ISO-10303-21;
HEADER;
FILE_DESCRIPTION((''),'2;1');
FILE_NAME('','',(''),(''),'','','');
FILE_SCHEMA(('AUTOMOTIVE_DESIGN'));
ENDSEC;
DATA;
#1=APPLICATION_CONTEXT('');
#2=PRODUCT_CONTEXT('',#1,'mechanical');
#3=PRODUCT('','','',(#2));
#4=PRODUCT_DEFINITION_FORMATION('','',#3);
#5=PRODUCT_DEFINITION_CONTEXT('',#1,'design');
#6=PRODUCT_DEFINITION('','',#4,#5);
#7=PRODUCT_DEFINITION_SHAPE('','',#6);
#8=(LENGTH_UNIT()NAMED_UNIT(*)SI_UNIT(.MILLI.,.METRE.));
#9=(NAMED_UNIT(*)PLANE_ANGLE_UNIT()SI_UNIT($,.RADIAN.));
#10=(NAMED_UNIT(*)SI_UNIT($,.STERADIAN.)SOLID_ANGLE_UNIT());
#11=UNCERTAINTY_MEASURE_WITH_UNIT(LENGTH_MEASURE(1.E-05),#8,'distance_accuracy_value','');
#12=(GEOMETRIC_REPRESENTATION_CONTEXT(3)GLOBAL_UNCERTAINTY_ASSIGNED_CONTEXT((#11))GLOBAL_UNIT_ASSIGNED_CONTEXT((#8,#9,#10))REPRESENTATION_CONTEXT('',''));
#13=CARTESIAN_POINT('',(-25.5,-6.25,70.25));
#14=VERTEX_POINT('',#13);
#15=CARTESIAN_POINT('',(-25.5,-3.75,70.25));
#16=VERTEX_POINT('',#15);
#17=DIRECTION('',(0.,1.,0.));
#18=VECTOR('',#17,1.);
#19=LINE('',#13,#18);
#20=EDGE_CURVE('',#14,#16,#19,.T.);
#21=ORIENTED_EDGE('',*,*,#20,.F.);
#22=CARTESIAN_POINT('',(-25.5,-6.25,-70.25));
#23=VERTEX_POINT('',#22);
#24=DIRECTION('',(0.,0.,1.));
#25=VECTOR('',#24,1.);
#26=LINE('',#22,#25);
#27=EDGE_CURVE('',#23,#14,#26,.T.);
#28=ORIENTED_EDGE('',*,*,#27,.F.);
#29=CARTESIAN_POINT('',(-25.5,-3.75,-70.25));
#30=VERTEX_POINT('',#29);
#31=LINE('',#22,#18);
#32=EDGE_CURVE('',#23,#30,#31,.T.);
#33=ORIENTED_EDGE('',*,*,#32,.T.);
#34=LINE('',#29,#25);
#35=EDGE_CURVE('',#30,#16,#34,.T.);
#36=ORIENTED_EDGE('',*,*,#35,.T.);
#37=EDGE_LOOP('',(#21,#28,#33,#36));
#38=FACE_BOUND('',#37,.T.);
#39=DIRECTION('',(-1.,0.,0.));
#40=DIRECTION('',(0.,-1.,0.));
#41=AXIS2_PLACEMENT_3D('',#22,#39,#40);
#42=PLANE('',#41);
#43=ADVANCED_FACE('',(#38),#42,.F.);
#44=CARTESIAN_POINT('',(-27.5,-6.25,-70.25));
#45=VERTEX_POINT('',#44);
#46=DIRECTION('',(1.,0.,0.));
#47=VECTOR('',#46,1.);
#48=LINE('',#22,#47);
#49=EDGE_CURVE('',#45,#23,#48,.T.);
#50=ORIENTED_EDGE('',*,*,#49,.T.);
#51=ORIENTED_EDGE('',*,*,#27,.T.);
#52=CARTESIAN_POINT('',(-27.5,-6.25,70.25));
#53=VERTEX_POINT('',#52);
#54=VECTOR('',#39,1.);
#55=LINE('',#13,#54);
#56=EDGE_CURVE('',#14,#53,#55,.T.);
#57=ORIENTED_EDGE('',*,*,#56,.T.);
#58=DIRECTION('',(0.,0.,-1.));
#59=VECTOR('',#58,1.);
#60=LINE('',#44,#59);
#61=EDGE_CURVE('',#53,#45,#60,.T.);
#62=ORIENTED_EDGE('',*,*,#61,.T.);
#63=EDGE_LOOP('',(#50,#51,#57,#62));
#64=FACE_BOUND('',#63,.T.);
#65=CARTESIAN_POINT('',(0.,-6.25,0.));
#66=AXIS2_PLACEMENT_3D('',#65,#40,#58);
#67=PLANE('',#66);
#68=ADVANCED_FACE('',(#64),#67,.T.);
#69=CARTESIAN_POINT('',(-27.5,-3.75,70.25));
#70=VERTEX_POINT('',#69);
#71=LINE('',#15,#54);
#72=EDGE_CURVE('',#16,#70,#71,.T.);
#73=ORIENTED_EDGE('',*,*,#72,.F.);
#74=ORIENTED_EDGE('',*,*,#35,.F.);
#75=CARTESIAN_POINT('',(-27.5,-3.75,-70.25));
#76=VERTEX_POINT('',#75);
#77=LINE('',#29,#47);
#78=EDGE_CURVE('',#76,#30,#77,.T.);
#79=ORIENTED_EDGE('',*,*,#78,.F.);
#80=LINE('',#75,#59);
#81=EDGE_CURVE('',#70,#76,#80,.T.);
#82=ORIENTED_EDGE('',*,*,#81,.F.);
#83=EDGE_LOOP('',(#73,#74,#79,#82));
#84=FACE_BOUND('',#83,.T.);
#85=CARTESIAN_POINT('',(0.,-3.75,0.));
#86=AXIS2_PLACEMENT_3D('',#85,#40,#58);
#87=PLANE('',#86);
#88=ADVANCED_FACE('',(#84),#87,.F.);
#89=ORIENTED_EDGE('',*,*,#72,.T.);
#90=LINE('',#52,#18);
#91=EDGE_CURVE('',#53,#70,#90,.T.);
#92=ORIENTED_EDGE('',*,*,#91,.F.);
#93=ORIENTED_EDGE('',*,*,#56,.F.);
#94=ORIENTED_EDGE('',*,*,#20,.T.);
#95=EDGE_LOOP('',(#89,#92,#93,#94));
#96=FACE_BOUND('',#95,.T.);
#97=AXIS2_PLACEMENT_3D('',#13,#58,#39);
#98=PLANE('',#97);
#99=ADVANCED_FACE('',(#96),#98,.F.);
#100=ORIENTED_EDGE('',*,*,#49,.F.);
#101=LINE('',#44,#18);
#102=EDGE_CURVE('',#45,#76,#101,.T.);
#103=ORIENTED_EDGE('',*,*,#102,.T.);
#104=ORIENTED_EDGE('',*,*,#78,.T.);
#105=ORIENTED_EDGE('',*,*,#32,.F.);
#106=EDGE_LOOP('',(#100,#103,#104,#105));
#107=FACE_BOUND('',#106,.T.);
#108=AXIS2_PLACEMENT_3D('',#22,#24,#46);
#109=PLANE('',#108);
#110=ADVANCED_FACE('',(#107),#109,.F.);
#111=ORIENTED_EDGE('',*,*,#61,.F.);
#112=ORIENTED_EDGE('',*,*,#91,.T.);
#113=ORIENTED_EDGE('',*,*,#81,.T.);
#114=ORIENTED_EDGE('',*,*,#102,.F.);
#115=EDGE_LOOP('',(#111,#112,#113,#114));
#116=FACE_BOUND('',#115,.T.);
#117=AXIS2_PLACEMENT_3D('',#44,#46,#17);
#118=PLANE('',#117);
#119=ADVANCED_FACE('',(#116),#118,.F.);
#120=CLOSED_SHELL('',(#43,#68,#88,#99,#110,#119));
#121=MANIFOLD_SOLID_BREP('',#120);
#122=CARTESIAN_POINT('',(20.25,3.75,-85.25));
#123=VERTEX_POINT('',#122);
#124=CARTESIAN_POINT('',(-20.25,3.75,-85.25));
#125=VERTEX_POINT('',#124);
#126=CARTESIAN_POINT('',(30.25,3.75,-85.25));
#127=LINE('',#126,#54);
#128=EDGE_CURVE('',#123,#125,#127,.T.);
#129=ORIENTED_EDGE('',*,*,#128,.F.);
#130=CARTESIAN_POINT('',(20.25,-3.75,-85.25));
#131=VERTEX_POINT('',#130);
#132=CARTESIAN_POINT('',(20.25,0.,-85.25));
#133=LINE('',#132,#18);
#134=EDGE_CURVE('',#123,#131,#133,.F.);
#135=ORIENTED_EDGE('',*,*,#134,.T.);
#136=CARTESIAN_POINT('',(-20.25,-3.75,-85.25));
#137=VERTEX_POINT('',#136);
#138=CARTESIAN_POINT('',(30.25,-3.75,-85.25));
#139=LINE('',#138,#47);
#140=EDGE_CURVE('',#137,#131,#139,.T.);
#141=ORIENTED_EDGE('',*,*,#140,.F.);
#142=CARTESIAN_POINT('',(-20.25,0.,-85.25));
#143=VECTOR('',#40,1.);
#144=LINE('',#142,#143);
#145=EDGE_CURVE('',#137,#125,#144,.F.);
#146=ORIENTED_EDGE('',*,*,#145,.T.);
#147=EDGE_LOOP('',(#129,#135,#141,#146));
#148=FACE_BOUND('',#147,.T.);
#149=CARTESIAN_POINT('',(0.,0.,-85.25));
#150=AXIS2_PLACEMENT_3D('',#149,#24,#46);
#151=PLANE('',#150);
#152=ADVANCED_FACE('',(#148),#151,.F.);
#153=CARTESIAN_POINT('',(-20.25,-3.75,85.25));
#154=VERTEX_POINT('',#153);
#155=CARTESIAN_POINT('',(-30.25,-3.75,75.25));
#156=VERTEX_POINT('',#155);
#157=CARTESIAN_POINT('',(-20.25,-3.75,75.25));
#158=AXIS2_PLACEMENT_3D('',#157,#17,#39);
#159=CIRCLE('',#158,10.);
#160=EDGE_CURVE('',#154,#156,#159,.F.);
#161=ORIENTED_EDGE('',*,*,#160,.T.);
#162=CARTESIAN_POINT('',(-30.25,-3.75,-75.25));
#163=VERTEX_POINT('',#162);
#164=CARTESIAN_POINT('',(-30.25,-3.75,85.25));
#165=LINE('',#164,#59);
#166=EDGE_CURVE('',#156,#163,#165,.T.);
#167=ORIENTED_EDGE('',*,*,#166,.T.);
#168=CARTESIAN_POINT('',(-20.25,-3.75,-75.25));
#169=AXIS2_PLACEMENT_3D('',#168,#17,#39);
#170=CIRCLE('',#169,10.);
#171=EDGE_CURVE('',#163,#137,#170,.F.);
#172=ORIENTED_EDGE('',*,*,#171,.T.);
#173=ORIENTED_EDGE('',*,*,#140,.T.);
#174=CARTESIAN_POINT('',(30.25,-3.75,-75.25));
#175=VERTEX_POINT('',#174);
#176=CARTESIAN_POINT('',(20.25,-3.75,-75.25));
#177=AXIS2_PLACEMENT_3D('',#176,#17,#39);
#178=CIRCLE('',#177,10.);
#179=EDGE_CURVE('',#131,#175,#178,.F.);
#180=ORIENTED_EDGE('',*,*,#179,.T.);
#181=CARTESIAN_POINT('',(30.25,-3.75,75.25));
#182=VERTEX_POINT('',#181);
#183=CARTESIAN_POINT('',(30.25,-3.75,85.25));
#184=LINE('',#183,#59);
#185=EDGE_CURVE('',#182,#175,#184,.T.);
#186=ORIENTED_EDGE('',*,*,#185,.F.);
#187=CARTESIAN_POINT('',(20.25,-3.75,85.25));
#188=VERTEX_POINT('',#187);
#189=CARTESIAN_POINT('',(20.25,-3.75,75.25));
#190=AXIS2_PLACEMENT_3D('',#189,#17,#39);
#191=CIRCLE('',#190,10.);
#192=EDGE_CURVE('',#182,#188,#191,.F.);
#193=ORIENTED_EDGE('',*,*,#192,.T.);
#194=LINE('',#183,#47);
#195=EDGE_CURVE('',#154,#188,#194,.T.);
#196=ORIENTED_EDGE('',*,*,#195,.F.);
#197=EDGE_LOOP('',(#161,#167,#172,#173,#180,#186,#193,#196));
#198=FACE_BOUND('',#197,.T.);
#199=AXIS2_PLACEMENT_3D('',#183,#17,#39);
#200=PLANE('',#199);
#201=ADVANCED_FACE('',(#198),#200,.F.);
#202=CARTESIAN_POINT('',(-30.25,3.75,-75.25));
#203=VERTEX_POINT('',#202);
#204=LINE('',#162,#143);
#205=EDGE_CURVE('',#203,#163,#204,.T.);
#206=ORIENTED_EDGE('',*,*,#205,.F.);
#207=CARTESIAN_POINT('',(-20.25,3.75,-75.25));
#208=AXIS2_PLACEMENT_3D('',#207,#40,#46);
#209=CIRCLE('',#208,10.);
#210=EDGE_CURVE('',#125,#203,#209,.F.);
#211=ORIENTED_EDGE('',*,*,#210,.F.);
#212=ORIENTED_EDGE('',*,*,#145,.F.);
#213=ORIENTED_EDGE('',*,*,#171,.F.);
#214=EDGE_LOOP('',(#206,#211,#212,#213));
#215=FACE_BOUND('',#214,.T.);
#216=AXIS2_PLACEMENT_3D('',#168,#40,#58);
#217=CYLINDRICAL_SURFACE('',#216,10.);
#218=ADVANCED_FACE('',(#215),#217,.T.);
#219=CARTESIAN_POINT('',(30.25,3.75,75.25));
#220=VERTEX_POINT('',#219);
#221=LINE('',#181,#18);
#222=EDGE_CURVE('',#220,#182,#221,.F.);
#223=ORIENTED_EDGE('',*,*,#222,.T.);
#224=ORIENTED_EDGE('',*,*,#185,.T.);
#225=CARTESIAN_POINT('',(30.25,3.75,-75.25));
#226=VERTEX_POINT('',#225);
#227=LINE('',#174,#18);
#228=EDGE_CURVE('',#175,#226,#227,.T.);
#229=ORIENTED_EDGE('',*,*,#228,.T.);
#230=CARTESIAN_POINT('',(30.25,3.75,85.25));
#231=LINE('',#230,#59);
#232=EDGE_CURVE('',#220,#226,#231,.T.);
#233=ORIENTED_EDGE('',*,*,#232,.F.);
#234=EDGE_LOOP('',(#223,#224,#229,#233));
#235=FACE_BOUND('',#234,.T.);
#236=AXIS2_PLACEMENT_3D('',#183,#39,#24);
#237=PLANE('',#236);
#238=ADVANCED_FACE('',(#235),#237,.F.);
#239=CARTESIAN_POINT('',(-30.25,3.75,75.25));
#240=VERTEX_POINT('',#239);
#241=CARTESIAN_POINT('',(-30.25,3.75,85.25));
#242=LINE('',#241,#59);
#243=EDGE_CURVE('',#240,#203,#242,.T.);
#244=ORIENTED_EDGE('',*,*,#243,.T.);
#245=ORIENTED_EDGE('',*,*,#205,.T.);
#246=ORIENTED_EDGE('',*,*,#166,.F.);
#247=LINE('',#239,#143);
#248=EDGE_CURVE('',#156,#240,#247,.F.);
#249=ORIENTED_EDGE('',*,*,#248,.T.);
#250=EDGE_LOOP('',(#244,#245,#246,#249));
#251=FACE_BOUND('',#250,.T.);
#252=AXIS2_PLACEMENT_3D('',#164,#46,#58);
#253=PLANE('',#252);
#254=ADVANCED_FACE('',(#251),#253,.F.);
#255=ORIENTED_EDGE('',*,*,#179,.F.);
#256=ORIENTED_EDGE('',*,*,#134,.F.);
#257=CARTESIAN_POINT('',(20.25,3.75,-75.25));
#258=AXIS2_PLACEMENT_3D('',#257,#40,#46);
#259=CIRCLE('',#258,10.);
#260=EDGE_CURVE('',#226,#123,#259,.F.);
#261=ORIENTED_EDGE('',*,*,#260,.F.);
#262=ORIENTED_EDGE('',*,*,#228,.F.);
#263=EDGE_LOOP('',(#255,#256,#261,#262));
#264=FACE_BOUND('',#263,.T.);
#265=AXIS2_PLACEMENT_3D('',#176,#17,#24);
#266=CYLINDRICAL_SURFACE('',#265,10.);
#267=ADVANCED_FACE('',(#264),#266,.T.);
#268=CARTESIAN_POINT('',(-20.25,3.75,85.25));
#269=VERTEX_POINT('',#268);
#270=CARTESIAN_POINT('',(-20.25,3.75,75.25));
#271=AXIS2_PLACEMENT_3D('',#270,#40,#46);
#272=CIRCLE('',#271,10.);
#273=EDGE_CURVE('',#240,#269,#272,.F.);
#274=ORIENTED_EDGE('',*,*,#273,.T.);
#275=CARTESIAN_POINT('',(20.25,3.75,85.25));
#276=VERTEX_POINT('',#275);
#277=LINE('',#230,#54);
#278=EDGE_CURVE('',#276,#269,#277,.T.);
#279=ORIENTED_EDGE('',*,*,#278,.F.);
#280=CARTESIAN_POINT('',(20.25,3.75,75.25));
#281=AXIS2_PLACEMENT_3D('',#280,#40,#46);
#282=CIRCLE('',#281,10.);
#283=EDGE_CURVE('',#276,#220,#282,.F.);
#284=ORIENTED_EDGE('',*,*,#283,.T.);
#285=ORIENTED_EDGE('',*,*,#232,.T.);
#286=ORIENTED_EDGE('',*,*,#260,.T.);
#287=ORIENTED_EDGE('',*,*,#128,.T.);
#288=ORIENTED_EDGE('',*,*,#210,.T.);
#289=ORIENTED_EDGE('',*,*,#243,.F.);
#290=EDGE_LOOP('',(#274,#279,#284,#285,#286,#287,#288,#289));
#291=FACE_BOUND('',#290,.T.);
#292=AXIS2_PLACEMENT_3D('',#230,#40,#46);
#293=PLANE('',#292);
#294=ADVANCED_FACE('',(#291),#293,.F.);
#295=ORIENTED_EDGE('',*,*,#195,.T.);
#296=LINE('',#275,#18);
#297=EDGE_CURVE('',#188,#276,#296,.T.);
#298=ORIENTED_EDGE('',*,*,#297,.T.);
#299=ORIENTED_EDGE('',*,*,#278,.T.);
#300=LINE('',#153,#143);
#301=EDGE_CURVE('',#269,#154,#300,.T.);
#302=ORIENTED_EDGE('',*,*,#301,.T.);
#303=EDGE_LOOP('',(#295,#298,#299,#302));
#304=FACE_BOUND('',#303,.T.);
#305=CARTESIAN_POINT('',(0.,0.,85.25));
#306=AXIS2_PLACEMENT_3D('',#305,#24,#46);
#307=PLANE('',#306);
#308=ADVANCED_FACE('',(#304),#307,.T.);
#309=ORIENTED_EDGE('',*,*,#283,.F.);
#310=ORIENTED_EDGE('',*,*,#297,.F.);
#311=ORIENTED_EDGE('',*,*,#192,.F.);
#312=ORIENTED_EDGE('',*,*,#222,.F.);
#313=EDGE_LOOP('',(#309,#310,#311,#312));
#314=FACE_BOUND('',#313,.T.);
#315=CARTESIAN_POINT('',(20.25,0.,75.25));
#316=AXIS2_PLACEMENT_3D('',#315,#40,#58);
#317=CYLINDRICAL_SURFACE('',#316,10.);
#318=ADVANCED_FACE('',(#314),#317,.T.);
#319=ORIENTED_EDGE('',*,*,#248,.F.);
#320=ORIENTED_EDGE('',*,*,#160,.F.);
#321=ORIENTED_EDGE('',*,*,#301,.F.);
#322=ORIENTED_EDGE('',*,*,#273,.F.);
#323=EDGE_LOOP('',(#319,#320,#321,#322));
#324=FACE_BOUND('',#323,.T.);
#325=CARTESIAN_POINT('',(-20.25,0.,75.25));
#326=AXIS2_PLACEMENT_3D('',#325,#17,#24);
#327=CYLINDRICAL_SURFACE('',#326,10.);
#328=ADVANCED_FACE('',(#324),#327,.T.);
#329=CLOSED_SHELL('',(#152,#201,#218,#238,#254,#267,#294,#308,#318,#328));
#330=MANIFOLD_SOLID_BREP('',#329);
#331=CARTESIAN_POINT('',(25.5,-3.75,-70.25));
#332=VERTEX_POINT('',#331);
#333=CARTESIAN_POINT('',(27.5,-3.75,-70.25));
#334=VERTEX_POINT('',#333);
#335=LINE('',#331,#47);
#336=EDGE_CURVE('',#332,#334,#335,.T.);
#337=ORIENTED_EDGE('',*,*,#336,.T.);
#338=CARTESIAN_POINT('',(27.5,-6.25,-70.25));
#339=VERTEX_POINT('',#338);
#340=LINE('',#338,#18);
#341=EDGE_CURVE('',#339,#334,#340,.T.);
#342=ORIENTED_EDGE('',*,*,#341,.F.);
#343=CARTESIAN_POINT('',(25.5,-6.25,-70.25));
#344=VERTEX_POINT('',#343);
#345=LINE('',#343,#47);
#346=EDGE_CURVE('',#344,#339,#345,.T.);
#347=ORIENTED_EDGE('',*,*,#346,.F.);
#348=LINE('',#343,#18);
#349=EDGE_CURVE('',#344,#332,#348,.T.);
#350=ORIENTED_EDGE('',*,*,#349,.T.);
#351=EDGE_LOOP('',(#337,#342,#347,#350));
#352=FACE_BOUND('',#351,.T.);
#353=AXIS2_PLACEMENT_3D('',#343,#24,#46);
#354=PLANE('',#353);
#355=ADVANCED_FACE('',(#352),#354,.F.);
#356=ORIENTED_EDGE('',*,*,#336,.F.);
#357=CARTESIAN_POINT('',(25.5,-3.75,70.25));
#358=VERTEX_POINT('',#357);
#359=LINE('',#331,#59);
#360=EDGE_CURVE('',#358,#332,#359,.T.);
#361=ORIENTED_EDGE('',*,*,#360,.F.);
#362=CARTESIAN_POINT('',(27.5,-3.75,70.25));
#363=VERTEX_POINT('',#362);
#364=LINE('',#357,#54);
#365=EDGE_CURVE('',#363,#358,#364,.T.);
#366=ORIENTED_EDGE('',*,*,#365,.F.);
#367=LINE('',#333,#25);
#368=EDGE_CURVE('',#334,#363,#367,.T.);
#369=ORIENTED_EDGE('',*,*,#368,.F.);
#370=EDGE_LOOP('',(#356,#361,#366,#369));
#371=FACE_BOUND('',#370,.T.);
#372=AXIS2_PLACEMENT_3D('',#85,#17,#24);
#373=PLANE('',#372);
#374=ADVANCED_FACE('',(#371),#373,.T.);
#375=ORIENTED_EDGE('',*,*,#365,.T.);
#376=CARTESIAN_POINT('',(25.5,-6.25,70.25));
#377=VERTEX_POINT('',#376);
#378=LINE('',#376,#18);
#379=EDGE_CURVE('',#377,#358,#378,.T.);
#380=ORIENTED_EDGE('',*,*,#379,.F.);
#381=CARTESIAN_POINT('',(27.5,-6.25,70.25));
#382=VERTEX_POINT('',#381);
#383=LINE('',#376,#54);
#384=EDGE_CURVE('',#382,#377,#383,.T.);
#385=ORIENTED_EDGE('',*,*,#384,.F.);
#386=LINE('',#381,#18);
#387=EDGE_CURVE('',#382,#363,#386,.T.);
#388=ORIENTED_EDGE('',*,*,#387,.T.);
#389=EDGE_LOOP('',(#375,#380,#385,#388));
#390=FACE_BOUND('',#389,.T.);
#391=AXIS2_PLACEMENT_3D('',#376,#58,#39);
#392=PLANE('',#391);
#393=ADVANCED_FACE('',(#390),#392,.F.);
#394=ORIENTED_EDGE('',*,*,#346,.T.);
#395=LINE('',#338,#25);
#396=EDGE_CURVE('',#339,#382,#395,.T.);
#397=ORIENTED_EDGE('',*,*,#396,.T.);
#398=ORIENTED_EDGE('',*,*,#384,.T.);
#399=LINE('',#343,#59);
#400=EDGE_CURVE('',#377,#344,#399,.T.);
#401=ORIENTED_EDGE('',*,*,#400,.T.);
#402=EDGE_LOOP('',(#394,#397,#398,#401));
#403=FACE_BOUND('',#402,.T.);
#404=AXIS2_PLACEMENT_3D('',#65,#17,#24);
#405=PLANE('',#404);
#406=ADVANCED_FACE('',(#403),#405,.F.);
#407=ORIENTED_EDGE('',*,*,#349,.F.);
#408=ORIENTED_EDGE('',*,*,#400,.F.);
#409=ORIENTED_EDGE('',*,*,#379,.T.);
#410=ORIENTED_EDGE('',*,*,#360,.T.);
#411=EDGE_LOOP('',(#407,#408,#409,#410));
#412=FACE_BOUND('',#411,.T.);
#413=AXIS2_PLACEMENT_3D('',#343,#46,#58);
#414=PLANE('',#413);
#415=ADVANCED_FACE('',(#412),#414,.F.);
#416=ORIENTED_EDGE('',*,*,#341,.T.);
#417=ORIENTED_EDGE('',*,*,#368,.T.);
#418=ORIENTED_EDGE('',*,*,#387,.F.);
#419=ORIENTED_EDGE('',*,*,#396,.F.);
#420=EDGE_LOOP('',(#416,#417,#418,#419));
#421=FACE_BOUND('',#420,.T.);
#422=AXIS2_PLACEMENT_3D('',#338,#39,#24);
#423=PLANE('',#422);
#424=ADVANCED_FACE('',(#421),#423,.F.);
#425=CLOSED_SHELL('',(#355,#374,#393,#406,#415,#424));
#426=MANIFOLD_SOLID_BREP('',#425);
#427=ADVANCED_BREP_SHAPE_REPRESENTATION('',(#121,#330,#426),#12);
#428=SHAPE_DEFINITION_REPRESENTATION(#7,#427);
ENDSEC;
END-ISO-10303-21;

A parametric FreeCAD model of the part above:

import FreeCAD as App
import Part
import Sketcher
from FreeCAD import Vector
Q = App.Units.Quantity


def edges_at(feature, points):
    """Names of the edges that pass closest to the given points."""
    edges = feature.Shape.Edges
    near = lambda p: min(range(len(edges)), key=lambda i: edges[i].distToShape(Part.Vertex(*p))[0])
    return sorted({f"Edge{near(p) + 1}" for p in points})

doc = App.newDocument("Part")
params = doc.addObject("Spreadsheet::Sheet", "Params")
for row, (alias, value) in enumerate([
    ("sketch1_width", "60.5 mm"),
    ("sketch1_height", "7.5 mm"),
    ("pad1_length", "170.5 mm"),
    ("fillet_radius", "10 mm"),
    ("sketch2_width", "2 mm"),
    ("sketch2_height", "140.5 mm"),
    ("pad2_length", "2.5 mm"),
    ("sketch3_width", "2 mm"),
    ("sketch3_height", "140.5 mm"),
    ("pad3_length", "2.5 mm"),
], start=1):
    params.set(f"A{row}", alias)
    params.set(f"B{row}", "=" + value)
    params.setAlias(f"B{row}", alias)

body = doc.addObject("PartDesign::Body", "Body")

# Sketch on XY plane
sketch1 = body.newObject("Sketcher::SketchObject", "Sketch")
sketch1.AttachmentSupport = (doc.getObject("XY_Plane"), [""])
sketch1.MapMode = "FlatFace"
sketch1.addGeometry([
    Part.LineSegment(Vector(-30, 4, 0), Vector(-30, -4, 0)),
    Part.LineSegment(Vector(-30, -4, 0), Vector(30, -4, 0)),
    Part.LineSegment(Vector(30, -4, 0), Vector(30, 4, 0)),
    Part.LineSegment(Vector(30, 4, 0), Vector(-30, 4, 0)),
], False)
sketch1.addConstraint([
    Sketcher.Constraint("Coincident", 0, 2, 1, 1),
    Sketcher.Constraint("Coincident", 1, 2, 2, 1),
    Sketcher.Constraint("Coincident", 2, 2, 3, 1),
    Sketcher.Constraint("Coincident", 3, 2, 0, 1),
    Sketcher.Constraint("Vertical", 0),
    Sketcher.Constraint("Horizontal", 1),
    Sketcher.Constraint("Vertical", 2),
    Sketcher.Constraint("Horizontal", 3),
    Sketcher.Constraint("Symmetric", 0, 2, 2, 2, -1, 1),
    Sketcher.Constraint("DistanceX", 1, 1, 1, 2, Q("60.5 mm")),
    Sketcher.Constraint("DistanceY", 0, 2, 0, 1, Q("7.5 mm")),
])
sketch1.setExpression("Constraints[9]", "Params.sketch1_width")
sketch1.setExpression("Constraints[10]", "Params.sketch1_height")
pad1 = body.newObject("PartDesign::Pad", "Pad")
pad1.Profile = sketch1
pad1.setExpression("Length", "Params.pad1_length")
pad1.Midplane = True
doc.recompute()

fillet = body.newObject("PartDesign::Fillet", "Fillet")
fillet.Base = (pad1, edges_at(pad1, [
    (30.25, 0, 85.25),
    (-30.25, 0, 85.25),
    (30.25, 0, -85.25),
    (-30.25, 0, -85.25),
]))
fillet.setExpression("Radius", "Params.fillet_radius")
body2 = doc.addObject("PartDesign::Body", "Body001")

# Sketch on XZ plane
sketch2 = body2.newObject("Sketcher::SketchObject", "Sketch001")
sketch2.AttachmentSupport = (doc.getObject("XZ_Plane001"), [""])
sketch2.MapMode = "FlatFace"
sketch2.AttachmentOffset = App.Placement(Vector(0, 0, 3.75), App.Rotation())
sketch2.addGeometry([
    Part.LineSegment(Vector(-27.5, 70.2, 0), Vector(-27.5, -70.2, 0)),
    Part.LineSegment(Vector(-27.5, -70.2, 0), Vector(-25.5, -70.2, 0)),
    Part.LineSegment(Vector(-25.5, -70.2, 0), Vector(-25.5, 70.2, 0)),
    Part.LineSegment(Vector(-25.5, 70.2, 0), Vector(-27.5, 70.2, 0)),
], False)
sketch2.addConstraint([
    Sketcher.Constraint("Coincident", 0, 2, 1, 1),
    Sketcher.Constraint("Coincident", 1, 2, 2, 1),
    Sketcher.Constraint("Coincident", 2, 2, 3, 1),
    Sketcher.Constraint("Coincident", 3, 2, 0, 1),
    Sketcher.Constraint("Vertical", 0),
    Sketcher.Constraint("Horizontal", 1),
    Sketcher.Constraint("Vertical", 2),
    Sketcher.Constraint("Horizontal", 3),
    Sketcher.Constraint("DistanceX", 1, 1, 1, 2, Q("2 mm")),
    Sketcher.Constraint("DistanceY", 0, 2, 0, 1, Q("140.5 mm")),
    Sketcher.Constraint("DistanceX", 0, 2, -1, 1, Q("27.5 mm")),
    Sketcher.Constraint("DistanceY", 0, 2, -1, 1, Q("70.25 mm")),
])
sketch2.setExpression("Constraints[8]", "Params.sketch2_width")
sketch2.setExpression("Constraints[9]", "Params.sketch2_height")
pad2 = body2.newObject("PartDesign::Pad", "Pad001")
pad2.Profile = sketch2
pad2.setExpression("Length", "Params.pad2_length")
body3 = doc.addObject("PartDesign::Body", "Body002")

# Sketch on XZ plane
sketch3 = body3.newObject("Sketcher::SketchObject", "Sketch002")
sketch3.AttachmentSupport = (doc.getObject("XZ_Plane002"), [""])
sketch3.MapMode = "FlatFace"
sketch3.AttachmentOffset = App.Placement(Vector(0, 0, 3.75), App.Rotation())
sketch3.addGeometry([
    Part.LineSegment(Vector(25.5, 70.2, 0), Vector(25.5, -70.2, 0)),
    Part.LineSegment(Vector(25.5, -70.2, 0), Vector(27.5, -70.2, 0)),
    Part.LineSegment(Vector(27.5, -70.2, 0), Vector(27.5, 70.2, 0)),
    Part.LineSegment(Vector(27.5, 70.2, 0), Vector(25.5, 70.2, 0)),
], False)
sketch3.addConstraint([
    Sketcher.Constraint("Coincident", 0, 2, 1, 1),
    Sketcher.Constraint("Coincident", 1, 2, 2, 1),
    Sketcher.Constraint("Coincident", 2, 2, 3, 1),
    Sketcher.Constraint("Coincident", 3, 2, 0, 1),
    Sketcher.Constraint("Vertical", 0),
    Sketcher.Constraint("Horizontal", 1),
    Sketcher.Constraint("Vertical", 2),
    Sketcher.Constraint("Horizontal", 3),
    Sketcher.Constraint("DistanceX", 1, 1, 1, 2, Q("2 mm")),
    Sketcher.Constraint("DistanceY", 0, 2, 0, 1, Q("140.5 mm")),
    Sketcher.Constraint("DistanceX", -1, 1, 0, 2, Q("25.5 mm")),
    Sketcher.Constraint("DistanceY", 0, 2, -1, 1, Q("70.25 mm")),
])
sketch3.setExpression("Constraints[8]", "Params.sketch3_width")
sketch3.setExpression("Constraints[9]", "Params.sketch3_height")
pad3 = body3.newObject("PartDesign::Pad", "Pad002")
pad3.Profile = sketch3
pad3.setExpression("Length", "Params.pad3_length")

doc.recompute()
